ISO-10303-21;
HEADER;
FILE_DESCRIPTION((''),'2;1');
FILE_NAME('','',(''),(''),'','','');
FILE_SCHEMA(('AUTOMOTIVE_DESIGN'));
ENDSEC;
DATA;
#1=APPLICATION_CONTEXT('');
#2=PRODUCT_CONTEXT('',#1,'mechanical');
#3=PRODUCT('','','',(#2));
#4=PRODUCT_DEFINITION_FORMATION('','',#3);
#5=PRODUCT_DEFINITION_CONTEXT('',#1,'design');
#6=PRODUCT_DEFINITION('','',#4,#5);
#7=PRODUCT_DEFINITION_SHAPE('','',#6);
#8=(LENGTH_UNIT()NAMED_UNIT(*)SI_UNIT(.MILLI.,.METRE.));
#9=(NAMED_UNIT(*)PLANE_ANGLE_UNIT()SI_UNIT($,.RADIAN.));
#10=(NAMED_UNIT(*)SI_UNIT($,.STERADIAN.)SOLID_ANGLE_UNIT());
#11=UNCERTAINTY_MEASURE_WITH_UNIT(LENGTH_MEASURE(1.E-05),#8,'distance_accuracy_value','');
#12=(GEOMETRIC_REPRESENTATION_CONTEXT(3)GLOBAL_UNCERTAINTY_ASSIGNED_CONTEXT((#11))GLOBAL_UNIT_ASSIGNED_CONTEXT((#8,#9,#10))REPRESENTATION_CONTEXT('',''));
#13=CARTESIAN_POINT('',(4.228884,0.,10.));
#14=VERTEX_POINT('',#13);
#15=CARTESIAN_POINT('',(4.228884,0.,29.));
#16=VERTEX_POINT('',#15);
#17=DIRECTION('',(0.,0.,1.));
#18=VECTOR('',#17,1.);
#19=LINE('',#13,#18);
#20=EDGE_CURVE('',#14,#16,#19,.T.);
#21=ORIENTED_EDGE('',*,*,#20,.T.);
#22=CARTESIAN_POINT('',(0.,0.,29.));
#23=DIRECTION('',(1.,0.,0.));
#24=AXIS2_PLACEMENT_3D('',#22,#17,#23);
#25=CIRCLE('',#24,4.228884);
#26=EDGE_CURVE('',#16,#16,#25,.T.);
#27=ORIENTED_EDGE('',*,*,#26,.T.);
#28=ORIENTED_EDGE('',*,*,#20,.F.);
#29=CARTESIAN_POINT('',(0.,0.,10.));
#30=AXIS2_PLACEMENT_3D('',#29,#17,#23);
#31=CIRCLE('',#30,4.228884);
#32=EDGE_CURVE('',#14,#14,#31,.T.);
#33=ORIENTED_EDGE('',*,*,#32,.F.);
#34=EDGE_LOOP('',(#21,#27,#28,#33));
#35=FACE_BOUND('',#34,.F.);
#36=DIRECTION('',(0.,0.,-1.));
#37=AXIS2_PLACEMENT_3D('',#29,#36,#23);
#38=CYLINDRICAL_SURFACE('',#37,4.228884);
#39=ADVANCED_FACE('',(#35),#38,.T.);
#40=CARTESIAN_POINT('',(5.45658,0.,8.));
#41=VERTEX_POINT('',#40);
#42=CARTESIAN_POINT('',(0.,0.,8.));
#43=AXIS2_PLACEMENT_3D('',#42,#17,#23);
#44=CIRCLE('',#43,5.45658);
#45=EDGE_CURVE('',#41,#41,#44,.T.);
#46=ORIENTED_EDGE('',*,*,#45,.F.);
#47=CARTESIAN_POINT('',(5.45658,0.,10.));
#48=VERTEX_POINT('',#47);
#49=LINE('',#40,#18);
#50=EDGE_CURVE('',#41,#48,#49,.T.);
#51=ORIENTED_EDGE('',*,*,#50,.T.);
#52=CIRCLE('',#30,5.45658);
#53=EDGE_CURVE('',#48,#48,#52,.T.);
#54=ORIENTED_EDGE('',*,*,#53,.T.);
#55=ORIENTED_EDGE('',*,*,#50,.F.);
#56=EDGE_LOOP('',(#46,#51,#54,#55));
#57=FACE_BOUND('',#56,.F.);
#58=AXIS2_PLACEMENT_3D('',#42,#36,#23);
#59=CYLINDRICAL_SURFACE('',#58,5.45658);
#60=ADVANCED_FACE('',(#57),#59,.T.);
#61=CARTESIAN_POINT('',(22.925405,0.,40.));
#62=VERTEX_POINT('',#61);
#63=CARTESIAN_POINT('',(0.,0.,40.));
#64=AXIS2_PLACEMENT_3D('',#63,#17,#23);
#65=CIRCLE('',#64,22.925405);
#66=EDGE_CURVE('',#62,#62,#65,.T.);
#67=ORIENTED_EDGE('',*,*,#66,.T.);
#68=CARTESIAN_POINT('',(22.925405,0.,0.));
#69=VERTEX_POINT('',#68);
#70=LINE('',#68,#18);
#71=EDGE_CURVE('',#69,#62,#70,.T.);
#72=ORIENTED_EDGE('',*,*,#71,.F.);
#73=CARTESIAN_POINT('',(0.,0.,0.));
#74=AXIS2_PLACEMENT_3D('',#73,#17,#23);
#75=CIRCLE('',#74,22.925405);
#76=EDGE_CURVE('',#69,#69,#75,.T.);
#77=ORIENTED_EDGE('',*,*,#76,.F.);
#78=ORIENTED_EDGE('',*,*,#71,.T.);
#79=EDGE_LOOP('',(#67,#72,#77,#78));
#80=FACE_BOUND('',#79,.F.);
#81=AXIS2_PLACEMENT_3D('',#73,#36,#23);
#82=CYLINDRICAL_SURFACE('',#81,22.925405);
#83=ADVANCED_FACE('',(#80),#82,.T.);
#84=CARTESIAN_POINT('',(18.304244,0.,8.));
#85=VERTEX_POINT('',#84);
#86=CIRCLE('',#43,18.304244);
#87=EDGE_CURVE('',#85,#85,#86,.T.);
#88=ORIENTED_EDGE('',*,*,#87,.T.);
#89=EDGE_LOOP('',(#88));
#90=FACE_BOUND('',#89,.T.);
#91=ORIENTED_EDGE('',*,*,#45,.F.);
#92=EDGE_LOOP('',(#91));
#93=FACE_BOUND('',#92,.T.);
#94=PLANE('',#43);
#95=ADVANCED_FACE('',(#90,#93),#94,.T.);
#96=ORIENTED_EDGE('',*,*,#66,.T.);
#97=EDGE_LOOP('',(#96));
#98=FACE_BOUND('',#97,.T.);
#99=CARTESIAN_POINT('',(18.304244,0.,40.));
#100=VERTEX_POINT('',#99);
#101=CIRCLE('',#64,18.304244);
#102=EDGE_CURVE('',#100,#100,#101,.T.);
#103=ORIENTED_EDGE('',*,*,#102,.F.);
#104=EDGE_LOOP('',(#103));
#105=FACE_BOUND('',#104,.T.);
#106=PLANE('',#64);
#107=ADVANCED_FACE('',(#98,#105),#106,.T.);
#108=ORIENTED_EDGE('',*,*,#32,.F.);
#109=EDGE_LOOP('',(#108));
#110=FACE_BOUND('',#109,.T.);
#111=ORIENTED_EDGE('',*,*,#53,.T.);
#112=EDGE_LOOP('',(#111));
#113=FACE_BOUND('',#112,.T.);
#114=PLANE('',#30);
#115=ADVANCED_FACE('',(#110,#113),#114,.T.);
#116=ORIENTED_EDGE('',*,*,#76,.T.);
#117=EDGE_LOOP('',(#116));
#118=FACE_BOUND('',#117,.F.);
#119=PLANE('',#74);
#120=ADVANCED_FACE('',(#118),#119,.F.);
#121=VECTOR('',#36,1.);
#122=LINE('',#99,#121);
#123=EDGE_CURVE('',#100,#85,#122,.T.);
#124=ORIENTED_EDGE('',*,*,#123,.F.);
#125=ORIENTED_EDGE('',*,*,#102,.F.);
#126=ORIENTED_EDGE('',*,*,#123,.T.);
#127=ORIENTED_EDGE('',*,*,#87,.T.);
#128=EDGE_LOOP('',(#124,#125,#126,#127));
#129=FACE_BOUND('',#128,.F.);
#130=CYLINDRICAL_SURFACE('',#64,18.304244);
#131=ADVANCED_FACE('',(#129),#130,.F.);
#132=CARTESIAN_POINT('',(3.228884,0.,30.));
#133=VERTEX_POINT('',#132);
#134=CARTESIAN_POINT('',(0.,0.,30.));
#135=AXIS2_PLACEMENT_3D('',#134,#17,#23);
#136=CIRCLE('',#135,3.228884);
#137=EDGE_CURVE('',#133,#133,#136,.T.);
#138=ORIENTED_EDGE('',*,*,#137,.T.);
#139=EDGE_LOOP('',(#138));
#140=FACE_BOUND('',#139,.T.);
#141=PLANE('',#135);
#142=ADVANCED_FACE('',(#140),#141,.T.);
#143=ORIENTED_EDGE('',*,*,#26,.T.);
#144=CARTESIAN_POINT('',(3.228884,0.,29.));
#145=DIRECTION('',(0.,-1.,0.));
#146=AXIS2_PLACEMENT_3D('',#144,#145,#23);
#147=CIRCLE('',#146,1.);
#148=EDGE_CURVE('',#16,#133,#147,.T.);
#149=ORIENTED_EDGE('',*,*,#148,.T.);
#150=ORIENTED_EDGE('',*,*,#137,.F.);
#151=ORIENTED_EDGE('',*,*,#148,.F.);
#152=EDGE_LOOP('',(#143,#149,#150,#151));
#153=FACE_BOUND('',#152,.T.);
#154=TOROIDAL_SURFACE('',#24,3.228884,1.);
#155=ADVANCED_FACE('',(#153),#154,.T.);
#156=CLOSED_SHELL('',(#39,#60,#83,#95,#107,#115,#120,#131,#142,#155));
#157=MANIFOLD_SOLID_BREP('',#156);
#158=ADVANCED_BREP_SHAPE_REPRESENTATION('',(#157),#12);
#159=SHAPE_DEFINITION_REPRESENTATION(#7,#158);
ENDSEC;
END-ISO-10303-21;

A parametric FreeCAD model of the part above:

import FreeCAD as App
import Part
import Sketcher
Q = App.Units.Quantity


def edges_at(feature, points):
    """Names of the edges that pass closest to the given points."""
    edges = feature.Shape.Edges
    near = lambda p: min(range(len(edges)), key=lambda i: edges[i].distToShape(Part.Vertex(*p))[0])
    return sorted({f"Edge{near(p) + 1}" for p in points})

doc = App.newDocument("Part")
body = doc.addObject("PartDesign::Body", "Body")

sketch1 = body.newObject("Sketcher::SketchObject", "Sketch")
sketch1.AttachmentSupport = (doc.getObject("XY_Plane"), [""])
sketch1.MapMode = "FlatFace"
sketch1.addGeometry(Part.Circle(App.Vector(0, 0, 0), App.Vector(0, 0, 1), 23), False)
sketch1.addConstraint(Sketcher.Constraint("Coincident", 0, 3, -1, 1))
sketch1.addConstraint(Sketcher.Constraint("Diameter", 0, Q("45.85081 mm")))
pad1 = body.newObject("PartDesign::Pad", "Pad")
pad1.Profile = sketch1
pad1.Length = 40

sketch2 = body.newObject("Sketcher::SketchObject", "Sketch001")
sketch2.AttachmentSupport = (doc.getObject("XY_Plane"), [""])
sketch2.MapMode = "FlatFace"
sketch2.AttachmentOffset = App.Placement(App.Vector(0, 0, 40), App.Rotation())
sketch2.addGeometry(Part.Circle(App.Vector(0, 0, 0), App.Vector(0, 0, 1), 18), False)
sketch2.addConstraint(Sketcher.Constraint("Coincident", 0, 3, -1, 1))
sketch2.addConstraint(Sketcher.Constraint("Diameter", 0, Q("36.608488 mm")))
pocket1 = body.newObject("PartDesign::Pocket", "Pocket")
pocket1.Profile = sketch2
pocket1.Length = 32

sketch3 = body.newObject("Sketcher::SketchObject", "Sketch002")
sketch3.AttachmentSupport = (doc.getObject("XY_Plane"), [""])
sketch3.MapMode = "FlatFace"
sketch3.AttachmentOffset = App.Placement(App.Vector(0, 0, 8), App.Rotation())
sketch3.addGeometry(Part.Circle(App.Vector(0, 0, 0), App.Vector(0, 0, 1), 5), False)
sketch3.addConstraint(Sketcher.Constraint("Coincident", 0, 3, -1, 1))
sketch3.addConstraint(Sketcher.Constraint("Diameter", 0, Q("10.91316 mm")))
pad2 = body.newObject("PartDesign::Pad", "Pad001")
pad2.Profile = sketch3
pad2.Length = 2

sketch4 = body.newObject("Sketcher::SketchObject", "Sketch003")
sketch4.AttachmentSupport = (doc.getObject("XY_Plane"), [""])
sketch4.MapMode = "FlatFace"
sketch4.AttachmentOffset = App.Placement(App.Vector(0, 0, 10), App.Rotation())
sketch4.addGeometry(Part.Circle(App.Vector(0, 0, 0), App.Vector(0, 0, 1), 4.2), False)
sketch4.addConstraint(Sketcher.Constraint("Coincident", 0, 3, -1, 1))
sketch4.addConstraint(Sketcher.Constraint("Diameter", 0, Q("8.457768 mm")))
pad3 = body.newObject("PartDesign::Pad", "Pad002")
pad3.Profile = sketch4
pad3.Length = 20
doc.recompute()

fillet = body.newObject("PartDesign::Fillet", "Fillet")
fillet.Base = (pad3, edges_at(pad3, [(-4.229, 0, 30)]))
fillet.Radius = 1

doc.recompute()
